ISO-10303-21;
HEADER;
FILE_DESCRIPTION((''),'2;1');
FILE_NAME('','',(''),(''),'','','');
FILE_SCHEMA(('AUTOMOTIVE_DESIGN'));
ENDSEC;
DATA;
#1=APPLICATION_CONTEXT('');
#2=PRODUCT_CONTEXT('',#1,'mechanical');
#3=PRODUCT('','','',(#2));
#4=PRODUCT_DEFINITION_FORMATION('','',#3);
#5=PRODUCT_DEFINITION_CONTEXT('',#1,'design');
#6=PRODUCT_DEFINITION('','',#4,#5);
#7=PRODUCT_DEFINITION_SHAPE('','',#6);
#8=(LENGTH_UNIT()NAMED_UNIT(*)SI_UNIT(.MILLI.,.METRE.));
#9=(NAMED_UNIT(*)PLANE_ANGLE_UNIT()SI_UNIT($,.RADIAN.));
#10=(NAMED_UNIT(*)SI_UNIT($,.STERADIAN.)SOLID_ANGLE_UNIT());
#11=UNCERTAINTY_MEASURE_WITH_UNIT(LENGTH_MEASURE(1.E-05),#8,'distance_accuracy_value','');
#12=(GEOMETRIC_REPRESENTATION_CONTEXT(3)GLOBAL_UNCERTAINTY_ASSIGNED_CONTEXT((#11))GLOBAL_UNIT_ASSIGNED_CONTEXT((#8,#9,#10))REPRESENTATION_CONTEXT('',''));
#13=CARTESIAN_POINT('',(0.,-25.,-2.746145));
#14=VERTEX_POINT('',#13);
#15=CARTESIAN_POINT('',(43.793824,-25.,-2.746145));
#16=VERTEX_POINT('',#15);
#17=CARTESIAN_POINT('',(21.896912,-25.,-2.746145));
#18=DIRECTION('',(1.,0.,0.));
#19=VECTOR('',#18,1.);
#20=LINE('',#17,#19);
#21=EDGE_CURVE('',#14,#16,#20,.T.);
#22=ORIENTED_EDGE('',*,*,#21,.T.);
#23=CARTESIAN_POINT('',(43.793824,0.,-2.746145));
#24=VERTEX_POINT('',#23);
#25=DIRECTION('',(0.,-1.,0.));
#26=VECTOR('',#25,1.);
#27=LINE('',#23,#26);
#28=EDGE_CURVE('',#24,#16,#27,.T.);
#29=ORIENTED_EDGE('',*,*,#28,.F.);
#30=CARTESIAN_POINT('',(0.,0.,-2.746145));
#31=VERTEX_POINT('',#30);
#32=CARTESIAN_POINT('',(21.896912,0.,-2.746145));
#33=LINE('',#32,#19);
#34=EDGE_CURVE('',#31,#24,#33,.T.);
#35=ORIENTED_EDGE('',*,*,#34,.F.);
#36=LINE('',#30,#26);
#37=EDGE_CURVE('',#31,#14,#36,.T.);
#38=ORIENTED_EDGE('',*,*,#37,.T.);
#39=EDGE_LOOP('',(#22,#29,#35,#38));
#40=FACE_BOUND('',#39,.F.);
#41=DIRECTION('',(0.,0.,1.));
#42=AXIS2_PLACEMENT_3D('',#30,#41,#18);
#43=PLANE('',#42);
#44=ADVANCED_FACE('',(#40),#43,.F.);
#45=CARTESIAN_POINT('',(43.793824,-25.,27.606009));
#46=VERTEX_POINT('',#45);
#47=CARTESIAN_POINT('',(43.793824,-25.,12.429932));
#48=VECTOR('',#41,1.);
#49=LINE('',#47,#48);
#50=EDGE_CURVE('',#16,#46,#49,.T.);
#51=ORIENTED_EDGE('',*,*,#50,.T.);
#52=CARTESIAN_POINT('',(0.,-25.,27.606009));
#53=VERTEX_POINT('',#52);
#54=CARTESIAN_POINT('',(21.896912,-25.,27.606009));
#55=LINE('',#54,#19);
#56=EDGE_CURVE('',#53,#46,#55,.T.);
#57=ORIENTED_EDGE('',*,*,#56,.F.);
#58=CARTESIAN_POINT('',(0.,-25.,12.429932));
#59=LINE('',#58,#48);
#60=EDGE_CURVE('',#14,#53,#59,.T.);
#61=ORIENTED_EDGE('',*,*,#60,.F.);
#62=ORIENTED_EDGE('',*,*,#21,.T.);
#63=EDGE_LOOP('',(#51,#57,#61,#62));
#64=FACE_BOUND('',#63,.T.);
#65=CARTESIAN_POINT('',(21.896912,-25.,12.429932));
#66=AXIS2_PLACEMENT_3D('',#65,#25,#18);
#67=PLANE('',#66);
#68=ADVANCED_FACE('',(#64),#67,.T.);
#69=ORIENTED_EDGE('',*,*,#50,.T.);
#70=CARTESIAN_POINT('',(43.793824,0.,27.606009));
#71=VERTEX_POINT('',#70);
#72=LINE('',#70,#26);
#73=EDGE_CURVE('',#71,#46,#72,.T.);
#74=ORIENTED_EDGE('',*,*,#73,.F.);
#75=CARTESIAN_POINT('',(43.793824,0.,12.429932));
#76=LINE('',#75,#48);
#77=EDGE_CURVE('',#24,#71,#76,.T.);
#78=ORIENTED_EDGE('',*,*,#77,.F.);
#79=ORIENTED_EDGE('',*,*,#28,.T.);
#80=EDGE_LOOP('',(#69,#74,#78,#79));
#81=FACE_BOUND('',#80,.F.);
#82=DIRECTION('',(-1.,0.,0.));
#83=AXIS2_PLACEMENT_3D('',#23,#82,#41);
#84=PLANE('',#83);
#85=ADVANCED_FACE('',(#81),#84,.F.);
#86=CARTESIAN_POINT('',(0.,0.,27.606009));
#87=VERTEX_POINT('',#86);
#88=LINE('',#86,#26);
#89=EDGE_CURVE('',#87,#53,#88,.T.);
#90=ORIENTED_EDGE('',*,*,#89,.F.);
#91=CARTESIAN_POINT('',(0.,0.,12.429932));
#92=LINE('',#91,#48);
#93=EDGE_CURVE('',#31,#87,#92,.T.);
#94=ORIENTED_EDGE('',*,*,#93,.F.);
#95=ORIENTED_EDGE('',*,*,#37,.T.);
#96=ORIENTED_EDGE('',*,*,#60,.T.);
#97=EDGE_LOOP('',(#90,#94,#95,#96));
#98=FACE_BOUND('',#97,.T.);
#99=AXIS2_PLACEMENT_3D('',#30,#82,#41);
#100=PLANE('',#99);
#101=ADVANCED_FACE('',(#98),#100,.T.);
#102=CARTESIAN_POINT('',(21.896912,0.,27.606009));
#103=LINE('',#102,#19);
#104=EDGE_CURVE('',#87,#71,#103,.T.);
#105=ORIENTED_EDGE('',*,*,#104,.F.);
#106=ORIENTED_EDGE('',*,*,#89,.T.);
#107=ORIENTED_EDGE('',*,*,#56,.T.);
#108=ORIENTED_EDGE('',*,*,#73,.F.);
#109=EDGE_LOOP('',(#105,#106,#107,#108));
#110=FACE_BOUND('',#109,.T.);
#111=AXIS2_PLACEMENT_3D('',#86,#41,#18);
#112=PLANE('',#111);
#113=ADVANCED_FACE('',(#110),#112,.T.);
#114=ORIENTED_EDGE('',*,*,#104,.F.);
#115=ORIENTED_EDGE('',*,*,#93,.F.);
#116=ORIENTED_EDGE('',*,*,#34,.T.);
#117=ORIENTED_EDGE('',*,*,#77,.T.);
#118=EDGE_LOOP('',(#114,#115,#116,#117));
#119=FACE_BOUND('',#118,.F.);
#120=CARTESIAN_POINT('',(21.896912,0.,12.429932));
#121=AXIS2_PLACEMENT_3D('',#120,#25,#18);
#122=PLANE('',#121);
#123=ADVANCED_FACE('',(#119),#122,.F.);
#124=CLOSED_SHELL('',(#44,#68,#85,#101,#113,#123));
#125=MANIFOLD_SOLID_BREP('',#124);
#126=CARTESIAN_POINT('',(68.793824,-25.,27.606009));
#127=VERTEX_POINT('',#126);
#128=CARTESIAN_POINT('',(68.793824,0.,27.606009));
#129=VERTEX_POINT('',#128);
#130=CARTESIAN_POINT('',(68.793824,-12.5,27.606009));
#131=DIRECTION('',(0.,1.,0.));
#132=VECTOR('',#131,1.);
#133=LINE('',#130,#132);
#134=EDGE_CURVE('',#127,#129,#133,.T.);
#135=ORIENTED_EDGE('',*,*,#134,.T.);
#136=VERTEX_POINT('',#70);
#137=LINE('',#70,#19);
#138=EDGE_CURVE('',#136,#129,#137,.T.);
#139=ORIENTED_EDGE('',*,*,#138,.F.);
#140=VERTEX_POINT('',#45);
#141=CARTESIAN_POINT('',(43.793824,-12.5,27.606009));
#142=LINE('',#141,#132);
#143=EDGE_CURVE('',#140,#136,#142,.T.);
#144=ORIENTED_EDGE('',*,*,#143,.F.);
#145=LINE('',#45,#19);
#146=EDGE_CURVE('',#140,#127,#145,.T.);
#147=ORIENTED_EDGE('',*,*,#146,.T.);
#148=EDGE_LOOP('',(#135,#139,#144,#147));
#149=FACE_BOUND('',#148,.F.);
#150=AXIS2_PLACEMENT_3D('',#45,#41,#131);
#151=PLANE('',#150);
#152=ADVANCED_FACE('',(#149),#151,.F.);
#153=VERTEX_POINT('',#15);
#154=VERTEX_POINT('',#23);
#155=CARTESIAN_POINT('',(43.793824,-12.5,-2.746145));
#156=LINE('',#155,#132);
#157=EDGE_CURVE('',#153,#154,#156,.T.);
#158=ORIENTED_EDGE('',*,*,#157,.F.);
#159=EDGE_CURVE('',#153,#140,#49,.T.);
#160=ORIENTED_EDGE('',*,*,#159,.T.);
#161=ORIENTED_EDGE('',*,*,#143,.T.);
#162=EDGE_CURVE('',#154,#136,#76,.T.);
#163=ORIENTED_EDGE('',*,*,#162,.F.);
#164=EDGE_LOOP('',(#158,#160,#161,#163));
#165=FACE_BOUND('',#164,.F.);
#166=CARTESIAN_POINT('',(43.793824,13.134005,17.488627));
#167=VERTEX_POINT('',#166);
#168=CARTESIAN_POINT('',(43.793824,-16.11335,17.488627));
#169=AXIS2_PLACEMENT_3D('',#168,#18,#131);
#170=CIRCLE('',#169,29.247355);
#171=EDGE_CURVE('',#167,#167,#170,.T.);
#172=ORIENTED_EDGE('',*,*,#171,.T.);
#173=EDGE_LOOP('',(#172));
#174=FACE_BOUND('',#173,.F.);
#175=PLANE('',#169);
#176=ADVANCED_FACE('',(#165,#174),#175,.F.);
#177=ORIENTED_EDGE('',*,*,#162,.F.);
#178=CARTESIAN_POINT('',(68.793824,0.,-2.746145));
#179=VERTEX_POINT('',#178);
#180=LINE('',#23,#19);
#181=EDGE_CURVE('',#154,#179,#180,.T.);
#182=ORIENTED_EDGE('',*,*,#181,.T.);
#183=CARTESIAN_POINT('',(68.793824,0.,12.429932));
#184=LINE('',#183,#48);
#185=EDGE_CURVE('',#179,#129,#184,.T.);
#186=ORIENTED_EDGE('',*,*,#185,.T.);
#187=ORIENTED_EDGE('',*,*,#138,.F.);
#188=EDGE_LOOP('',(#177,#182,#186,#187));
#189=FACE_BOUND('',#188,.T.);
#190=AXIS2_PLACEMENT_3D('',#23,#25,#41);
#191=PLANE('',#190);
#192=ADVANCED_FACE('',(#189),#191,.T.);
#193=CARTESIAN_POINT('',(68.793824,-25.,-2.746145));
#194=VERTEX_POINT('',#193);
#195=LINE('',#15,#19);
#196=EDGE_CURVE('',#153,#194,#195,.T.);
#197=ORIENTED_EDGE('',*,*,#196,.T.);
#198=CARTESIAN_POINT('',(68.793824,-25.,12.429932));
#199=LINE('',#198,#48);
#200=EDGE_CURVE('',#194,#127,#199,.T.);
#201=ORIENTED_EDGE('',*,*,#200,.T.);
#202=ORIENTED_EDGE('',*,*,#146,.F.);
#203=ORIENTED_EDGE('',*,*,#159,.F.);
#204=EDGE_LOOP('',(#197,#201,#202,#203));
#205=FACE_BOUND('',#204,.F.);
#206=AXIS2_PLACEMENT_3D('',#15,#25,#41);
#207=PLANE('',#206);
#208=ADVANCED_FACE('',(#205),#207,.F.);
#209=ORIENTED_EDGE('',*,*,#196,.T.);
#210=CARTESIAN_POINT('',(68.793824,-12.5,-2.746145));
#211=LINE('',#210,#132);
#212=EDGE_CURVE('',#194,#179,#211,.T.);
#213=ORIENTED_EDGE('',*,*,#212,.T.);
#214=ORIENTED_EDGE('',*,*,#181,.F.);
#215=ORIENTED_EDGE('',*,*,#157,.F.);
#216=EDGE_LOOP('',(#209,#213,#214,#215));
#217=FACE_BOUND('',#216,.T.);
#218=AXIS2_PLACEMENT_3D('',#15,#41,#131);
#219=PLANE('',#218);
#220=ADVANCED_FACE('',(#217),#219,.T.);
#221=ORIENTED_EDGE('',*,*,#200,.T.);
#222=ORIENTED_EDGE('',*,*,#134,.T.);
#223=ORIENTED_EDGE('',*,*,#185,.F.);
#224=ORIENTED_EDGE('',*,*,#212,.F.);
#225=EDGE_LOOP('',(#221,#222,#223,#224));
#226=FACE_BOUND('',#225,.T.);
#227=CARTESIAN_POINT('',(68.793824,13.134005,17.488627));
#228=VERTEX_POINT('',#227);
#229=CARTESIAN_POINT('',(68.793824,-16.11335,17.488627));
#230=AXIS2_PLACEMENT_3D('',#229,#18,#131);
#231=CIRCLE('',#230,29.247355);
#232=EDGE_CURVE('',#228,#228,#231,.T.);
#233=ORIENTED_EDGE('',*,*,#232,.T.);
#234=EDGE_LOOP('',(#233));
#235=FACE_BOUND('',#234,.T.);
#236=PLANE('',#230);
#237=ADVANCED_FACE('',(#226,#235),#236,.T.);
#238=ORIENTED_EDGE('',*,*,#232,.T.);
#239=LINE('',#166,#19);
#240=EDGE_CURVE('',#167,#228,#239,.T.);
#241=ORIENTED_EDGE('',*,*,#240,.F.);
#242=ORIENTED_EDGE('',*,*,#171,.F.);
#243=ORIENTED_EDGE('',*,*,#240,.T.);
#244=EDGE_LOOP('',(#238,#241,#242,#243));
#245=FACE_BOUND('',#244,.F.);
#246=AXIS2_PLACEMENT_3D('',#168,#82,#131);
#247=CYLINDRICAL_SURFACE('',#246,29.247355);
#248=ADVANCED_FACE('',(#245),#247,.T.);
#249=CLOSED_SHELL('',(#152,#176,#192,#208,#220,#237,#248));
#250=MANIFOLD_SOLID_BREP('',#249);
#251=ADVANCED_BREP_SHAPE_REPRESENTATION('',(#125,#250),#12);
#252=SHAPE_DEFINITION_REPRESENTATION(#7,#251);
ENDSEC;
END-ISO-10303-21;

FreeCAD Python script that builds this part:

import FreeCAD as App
import Part
import Sketcher

V = App.Vector

doc = App.newDocument("Part")
body = doc.addObject("PartDesign::Body", "Body")

# Sketch on XZ plane
sketch1 = body.newObject("Sketcher::SketchObject", "Sketch")
sketch1.AttachmentSupport = (doc.getObject("XZ_Plane"), [""])
sketch1.MapMode = "FlatFace"
sketch1.addGeometry(Part.LineSegment(V(0, 28, 0), V(0, -3, 0)), False)
sketch1.addGeometry(Part.LineSegment(V(0, -3, 0), V(44, -3, 0)), False)
sketch1.addGeometry(Part.LineSegment(V(44, -3, 0), V(44, 28, 0)), False)
sketch1.addGeometry(Part.LineSegment(V(44, 28, 0), V(0, 28, 0)), False)
sketch1.addConstraint(Sketcher.Constraint("Coincident", 0, 2, 1, 1))
sketch1.addConstraint(Sketcher.Constraint("Coincident", 1, 2, 2, 1))
sketch1.addConstraint(Sketcher.Constraint("Coincident", 2, 2, 3, 1))
sketch1.addConstraint(Sketcher.Constraint("Coincident", 3, 2, 0, 1))
sketch1.addConstraint(Sketcher.Constraint("Vertical", 0))
sketch1.addConstraint(Sketcher.Constraint("Horizontal", 1))
sketch1.addConstraint(Sketcher.Constraint("Vertical", 2))
sketch1.addConstraint(Sketcher.Constraint("Horizontal", 3))
sketch1.addConstraint(Sketcher.Constraint("PointOnObject", 0, 2, -2))
sketch1.addConstraint(Sketcher.Constraint("DistanceX", 1, 1, 1, 2, 43.793824))
sketch1.addConstraint(Sketcher.Constraint("DistanceY", 0, 2, 0, 1, 30.352155))
sketch1.addConstraint(Sketcher.Constraint("DistanceY", -1, 1, 2, 2, 27.606009))
pad1 = body.newObject("PartDesign::Pad", "Pad")
pad1.Profile = sketch1
pad1.Length = 25
body2 = doc.addObject("PartDesign::Body", "Body001")

# Sketch on YZ plane
sketch2 = body2.newObject("Sketcher::SketchObject", "Sketch001")
sketch2.AttachmentSupport = (doc.getObject("YZ_Plane001"), [""])
sketch2.MapMode = "FlatFace"
sketch2.AttachmentOffset = App.Placement(V(0, 0, 43.793824), App.Rotation())
sketch2.addGeometry(Part.Circle(V(-16, 17, 0), V(0, 0, 1), 29), False)
sketch2.addGeometry(Part.LineSegment(V(0, -3, 0), V(-25, -3, 0)), False)
sketch2.addGeometry(Part.LineSegment(V(-25, -3, 0), V(-25, 28, 0)), False)
sketch2.addGeometry(Part.LineSegment(V(-25, 28, 0), V(0, 28, 0)), False)
sketch2.addGeometry(Part.LineSegment(V(0, 28, 0), V(0, -3, 0)), False)
sketch2.addConstraint(Sketcher.Constraint("Coincident", 1, 2, 2, 1))
sketch2.addConstraint(Sketcher.Constraint("Coincident", 2, 2, 3, 1))
sketch2.addConstraint(Sketcher.Constraint("Coincident", 3, 2, 4, 1))
sketch2.addConstraint(Sketcher.Constraint("Coincident", 4, 2, 1, 1))
sketch2.addConstraint(Sketcher.Constraint("Horizontal", 1))
sketch2.addConstraint(Sketcher.Constraint("Vertical", 2))
sketch2.addConstraint(Sketcher.Constraint("Horizontal", 3))
sketch2.addConstraint(Sketcher.Constraint("Vertical", 4))
sketch2.addConstraint(Sketcher.Constraint("PointOnObject", 3, 2, -2))
sketch2.addConstraint(Sketcher.Constraint("DistanceX", 1, 2, 1, 1, 25.0))
sketch2.addConstraint(Sketcher.Constraint("Diameter", 0, 58.49471))
sketch2.addConstraint(Sketcher.Constraint("DistanceY", 2, 1, 2, 2, 30.352155))
sketch2.addConstraint(Sketcher.Constraint("DistanceX", 0, 3, -1, 1, 16.11335))
sketch2.addConstraint(Sketcher.Constraint("DistanceY", -1, 1, 2, 2, 27.606009))
sketch2.addConstraint(Sketcher.Constraint("DistanceY", -1, 1, 0, 3, 17.488627))
pad2 = body2.newObject("PartDesign::Pad", "Pad001")
pad2.Profile = sketch2
pad2.Length = 25

doc.recompute()
